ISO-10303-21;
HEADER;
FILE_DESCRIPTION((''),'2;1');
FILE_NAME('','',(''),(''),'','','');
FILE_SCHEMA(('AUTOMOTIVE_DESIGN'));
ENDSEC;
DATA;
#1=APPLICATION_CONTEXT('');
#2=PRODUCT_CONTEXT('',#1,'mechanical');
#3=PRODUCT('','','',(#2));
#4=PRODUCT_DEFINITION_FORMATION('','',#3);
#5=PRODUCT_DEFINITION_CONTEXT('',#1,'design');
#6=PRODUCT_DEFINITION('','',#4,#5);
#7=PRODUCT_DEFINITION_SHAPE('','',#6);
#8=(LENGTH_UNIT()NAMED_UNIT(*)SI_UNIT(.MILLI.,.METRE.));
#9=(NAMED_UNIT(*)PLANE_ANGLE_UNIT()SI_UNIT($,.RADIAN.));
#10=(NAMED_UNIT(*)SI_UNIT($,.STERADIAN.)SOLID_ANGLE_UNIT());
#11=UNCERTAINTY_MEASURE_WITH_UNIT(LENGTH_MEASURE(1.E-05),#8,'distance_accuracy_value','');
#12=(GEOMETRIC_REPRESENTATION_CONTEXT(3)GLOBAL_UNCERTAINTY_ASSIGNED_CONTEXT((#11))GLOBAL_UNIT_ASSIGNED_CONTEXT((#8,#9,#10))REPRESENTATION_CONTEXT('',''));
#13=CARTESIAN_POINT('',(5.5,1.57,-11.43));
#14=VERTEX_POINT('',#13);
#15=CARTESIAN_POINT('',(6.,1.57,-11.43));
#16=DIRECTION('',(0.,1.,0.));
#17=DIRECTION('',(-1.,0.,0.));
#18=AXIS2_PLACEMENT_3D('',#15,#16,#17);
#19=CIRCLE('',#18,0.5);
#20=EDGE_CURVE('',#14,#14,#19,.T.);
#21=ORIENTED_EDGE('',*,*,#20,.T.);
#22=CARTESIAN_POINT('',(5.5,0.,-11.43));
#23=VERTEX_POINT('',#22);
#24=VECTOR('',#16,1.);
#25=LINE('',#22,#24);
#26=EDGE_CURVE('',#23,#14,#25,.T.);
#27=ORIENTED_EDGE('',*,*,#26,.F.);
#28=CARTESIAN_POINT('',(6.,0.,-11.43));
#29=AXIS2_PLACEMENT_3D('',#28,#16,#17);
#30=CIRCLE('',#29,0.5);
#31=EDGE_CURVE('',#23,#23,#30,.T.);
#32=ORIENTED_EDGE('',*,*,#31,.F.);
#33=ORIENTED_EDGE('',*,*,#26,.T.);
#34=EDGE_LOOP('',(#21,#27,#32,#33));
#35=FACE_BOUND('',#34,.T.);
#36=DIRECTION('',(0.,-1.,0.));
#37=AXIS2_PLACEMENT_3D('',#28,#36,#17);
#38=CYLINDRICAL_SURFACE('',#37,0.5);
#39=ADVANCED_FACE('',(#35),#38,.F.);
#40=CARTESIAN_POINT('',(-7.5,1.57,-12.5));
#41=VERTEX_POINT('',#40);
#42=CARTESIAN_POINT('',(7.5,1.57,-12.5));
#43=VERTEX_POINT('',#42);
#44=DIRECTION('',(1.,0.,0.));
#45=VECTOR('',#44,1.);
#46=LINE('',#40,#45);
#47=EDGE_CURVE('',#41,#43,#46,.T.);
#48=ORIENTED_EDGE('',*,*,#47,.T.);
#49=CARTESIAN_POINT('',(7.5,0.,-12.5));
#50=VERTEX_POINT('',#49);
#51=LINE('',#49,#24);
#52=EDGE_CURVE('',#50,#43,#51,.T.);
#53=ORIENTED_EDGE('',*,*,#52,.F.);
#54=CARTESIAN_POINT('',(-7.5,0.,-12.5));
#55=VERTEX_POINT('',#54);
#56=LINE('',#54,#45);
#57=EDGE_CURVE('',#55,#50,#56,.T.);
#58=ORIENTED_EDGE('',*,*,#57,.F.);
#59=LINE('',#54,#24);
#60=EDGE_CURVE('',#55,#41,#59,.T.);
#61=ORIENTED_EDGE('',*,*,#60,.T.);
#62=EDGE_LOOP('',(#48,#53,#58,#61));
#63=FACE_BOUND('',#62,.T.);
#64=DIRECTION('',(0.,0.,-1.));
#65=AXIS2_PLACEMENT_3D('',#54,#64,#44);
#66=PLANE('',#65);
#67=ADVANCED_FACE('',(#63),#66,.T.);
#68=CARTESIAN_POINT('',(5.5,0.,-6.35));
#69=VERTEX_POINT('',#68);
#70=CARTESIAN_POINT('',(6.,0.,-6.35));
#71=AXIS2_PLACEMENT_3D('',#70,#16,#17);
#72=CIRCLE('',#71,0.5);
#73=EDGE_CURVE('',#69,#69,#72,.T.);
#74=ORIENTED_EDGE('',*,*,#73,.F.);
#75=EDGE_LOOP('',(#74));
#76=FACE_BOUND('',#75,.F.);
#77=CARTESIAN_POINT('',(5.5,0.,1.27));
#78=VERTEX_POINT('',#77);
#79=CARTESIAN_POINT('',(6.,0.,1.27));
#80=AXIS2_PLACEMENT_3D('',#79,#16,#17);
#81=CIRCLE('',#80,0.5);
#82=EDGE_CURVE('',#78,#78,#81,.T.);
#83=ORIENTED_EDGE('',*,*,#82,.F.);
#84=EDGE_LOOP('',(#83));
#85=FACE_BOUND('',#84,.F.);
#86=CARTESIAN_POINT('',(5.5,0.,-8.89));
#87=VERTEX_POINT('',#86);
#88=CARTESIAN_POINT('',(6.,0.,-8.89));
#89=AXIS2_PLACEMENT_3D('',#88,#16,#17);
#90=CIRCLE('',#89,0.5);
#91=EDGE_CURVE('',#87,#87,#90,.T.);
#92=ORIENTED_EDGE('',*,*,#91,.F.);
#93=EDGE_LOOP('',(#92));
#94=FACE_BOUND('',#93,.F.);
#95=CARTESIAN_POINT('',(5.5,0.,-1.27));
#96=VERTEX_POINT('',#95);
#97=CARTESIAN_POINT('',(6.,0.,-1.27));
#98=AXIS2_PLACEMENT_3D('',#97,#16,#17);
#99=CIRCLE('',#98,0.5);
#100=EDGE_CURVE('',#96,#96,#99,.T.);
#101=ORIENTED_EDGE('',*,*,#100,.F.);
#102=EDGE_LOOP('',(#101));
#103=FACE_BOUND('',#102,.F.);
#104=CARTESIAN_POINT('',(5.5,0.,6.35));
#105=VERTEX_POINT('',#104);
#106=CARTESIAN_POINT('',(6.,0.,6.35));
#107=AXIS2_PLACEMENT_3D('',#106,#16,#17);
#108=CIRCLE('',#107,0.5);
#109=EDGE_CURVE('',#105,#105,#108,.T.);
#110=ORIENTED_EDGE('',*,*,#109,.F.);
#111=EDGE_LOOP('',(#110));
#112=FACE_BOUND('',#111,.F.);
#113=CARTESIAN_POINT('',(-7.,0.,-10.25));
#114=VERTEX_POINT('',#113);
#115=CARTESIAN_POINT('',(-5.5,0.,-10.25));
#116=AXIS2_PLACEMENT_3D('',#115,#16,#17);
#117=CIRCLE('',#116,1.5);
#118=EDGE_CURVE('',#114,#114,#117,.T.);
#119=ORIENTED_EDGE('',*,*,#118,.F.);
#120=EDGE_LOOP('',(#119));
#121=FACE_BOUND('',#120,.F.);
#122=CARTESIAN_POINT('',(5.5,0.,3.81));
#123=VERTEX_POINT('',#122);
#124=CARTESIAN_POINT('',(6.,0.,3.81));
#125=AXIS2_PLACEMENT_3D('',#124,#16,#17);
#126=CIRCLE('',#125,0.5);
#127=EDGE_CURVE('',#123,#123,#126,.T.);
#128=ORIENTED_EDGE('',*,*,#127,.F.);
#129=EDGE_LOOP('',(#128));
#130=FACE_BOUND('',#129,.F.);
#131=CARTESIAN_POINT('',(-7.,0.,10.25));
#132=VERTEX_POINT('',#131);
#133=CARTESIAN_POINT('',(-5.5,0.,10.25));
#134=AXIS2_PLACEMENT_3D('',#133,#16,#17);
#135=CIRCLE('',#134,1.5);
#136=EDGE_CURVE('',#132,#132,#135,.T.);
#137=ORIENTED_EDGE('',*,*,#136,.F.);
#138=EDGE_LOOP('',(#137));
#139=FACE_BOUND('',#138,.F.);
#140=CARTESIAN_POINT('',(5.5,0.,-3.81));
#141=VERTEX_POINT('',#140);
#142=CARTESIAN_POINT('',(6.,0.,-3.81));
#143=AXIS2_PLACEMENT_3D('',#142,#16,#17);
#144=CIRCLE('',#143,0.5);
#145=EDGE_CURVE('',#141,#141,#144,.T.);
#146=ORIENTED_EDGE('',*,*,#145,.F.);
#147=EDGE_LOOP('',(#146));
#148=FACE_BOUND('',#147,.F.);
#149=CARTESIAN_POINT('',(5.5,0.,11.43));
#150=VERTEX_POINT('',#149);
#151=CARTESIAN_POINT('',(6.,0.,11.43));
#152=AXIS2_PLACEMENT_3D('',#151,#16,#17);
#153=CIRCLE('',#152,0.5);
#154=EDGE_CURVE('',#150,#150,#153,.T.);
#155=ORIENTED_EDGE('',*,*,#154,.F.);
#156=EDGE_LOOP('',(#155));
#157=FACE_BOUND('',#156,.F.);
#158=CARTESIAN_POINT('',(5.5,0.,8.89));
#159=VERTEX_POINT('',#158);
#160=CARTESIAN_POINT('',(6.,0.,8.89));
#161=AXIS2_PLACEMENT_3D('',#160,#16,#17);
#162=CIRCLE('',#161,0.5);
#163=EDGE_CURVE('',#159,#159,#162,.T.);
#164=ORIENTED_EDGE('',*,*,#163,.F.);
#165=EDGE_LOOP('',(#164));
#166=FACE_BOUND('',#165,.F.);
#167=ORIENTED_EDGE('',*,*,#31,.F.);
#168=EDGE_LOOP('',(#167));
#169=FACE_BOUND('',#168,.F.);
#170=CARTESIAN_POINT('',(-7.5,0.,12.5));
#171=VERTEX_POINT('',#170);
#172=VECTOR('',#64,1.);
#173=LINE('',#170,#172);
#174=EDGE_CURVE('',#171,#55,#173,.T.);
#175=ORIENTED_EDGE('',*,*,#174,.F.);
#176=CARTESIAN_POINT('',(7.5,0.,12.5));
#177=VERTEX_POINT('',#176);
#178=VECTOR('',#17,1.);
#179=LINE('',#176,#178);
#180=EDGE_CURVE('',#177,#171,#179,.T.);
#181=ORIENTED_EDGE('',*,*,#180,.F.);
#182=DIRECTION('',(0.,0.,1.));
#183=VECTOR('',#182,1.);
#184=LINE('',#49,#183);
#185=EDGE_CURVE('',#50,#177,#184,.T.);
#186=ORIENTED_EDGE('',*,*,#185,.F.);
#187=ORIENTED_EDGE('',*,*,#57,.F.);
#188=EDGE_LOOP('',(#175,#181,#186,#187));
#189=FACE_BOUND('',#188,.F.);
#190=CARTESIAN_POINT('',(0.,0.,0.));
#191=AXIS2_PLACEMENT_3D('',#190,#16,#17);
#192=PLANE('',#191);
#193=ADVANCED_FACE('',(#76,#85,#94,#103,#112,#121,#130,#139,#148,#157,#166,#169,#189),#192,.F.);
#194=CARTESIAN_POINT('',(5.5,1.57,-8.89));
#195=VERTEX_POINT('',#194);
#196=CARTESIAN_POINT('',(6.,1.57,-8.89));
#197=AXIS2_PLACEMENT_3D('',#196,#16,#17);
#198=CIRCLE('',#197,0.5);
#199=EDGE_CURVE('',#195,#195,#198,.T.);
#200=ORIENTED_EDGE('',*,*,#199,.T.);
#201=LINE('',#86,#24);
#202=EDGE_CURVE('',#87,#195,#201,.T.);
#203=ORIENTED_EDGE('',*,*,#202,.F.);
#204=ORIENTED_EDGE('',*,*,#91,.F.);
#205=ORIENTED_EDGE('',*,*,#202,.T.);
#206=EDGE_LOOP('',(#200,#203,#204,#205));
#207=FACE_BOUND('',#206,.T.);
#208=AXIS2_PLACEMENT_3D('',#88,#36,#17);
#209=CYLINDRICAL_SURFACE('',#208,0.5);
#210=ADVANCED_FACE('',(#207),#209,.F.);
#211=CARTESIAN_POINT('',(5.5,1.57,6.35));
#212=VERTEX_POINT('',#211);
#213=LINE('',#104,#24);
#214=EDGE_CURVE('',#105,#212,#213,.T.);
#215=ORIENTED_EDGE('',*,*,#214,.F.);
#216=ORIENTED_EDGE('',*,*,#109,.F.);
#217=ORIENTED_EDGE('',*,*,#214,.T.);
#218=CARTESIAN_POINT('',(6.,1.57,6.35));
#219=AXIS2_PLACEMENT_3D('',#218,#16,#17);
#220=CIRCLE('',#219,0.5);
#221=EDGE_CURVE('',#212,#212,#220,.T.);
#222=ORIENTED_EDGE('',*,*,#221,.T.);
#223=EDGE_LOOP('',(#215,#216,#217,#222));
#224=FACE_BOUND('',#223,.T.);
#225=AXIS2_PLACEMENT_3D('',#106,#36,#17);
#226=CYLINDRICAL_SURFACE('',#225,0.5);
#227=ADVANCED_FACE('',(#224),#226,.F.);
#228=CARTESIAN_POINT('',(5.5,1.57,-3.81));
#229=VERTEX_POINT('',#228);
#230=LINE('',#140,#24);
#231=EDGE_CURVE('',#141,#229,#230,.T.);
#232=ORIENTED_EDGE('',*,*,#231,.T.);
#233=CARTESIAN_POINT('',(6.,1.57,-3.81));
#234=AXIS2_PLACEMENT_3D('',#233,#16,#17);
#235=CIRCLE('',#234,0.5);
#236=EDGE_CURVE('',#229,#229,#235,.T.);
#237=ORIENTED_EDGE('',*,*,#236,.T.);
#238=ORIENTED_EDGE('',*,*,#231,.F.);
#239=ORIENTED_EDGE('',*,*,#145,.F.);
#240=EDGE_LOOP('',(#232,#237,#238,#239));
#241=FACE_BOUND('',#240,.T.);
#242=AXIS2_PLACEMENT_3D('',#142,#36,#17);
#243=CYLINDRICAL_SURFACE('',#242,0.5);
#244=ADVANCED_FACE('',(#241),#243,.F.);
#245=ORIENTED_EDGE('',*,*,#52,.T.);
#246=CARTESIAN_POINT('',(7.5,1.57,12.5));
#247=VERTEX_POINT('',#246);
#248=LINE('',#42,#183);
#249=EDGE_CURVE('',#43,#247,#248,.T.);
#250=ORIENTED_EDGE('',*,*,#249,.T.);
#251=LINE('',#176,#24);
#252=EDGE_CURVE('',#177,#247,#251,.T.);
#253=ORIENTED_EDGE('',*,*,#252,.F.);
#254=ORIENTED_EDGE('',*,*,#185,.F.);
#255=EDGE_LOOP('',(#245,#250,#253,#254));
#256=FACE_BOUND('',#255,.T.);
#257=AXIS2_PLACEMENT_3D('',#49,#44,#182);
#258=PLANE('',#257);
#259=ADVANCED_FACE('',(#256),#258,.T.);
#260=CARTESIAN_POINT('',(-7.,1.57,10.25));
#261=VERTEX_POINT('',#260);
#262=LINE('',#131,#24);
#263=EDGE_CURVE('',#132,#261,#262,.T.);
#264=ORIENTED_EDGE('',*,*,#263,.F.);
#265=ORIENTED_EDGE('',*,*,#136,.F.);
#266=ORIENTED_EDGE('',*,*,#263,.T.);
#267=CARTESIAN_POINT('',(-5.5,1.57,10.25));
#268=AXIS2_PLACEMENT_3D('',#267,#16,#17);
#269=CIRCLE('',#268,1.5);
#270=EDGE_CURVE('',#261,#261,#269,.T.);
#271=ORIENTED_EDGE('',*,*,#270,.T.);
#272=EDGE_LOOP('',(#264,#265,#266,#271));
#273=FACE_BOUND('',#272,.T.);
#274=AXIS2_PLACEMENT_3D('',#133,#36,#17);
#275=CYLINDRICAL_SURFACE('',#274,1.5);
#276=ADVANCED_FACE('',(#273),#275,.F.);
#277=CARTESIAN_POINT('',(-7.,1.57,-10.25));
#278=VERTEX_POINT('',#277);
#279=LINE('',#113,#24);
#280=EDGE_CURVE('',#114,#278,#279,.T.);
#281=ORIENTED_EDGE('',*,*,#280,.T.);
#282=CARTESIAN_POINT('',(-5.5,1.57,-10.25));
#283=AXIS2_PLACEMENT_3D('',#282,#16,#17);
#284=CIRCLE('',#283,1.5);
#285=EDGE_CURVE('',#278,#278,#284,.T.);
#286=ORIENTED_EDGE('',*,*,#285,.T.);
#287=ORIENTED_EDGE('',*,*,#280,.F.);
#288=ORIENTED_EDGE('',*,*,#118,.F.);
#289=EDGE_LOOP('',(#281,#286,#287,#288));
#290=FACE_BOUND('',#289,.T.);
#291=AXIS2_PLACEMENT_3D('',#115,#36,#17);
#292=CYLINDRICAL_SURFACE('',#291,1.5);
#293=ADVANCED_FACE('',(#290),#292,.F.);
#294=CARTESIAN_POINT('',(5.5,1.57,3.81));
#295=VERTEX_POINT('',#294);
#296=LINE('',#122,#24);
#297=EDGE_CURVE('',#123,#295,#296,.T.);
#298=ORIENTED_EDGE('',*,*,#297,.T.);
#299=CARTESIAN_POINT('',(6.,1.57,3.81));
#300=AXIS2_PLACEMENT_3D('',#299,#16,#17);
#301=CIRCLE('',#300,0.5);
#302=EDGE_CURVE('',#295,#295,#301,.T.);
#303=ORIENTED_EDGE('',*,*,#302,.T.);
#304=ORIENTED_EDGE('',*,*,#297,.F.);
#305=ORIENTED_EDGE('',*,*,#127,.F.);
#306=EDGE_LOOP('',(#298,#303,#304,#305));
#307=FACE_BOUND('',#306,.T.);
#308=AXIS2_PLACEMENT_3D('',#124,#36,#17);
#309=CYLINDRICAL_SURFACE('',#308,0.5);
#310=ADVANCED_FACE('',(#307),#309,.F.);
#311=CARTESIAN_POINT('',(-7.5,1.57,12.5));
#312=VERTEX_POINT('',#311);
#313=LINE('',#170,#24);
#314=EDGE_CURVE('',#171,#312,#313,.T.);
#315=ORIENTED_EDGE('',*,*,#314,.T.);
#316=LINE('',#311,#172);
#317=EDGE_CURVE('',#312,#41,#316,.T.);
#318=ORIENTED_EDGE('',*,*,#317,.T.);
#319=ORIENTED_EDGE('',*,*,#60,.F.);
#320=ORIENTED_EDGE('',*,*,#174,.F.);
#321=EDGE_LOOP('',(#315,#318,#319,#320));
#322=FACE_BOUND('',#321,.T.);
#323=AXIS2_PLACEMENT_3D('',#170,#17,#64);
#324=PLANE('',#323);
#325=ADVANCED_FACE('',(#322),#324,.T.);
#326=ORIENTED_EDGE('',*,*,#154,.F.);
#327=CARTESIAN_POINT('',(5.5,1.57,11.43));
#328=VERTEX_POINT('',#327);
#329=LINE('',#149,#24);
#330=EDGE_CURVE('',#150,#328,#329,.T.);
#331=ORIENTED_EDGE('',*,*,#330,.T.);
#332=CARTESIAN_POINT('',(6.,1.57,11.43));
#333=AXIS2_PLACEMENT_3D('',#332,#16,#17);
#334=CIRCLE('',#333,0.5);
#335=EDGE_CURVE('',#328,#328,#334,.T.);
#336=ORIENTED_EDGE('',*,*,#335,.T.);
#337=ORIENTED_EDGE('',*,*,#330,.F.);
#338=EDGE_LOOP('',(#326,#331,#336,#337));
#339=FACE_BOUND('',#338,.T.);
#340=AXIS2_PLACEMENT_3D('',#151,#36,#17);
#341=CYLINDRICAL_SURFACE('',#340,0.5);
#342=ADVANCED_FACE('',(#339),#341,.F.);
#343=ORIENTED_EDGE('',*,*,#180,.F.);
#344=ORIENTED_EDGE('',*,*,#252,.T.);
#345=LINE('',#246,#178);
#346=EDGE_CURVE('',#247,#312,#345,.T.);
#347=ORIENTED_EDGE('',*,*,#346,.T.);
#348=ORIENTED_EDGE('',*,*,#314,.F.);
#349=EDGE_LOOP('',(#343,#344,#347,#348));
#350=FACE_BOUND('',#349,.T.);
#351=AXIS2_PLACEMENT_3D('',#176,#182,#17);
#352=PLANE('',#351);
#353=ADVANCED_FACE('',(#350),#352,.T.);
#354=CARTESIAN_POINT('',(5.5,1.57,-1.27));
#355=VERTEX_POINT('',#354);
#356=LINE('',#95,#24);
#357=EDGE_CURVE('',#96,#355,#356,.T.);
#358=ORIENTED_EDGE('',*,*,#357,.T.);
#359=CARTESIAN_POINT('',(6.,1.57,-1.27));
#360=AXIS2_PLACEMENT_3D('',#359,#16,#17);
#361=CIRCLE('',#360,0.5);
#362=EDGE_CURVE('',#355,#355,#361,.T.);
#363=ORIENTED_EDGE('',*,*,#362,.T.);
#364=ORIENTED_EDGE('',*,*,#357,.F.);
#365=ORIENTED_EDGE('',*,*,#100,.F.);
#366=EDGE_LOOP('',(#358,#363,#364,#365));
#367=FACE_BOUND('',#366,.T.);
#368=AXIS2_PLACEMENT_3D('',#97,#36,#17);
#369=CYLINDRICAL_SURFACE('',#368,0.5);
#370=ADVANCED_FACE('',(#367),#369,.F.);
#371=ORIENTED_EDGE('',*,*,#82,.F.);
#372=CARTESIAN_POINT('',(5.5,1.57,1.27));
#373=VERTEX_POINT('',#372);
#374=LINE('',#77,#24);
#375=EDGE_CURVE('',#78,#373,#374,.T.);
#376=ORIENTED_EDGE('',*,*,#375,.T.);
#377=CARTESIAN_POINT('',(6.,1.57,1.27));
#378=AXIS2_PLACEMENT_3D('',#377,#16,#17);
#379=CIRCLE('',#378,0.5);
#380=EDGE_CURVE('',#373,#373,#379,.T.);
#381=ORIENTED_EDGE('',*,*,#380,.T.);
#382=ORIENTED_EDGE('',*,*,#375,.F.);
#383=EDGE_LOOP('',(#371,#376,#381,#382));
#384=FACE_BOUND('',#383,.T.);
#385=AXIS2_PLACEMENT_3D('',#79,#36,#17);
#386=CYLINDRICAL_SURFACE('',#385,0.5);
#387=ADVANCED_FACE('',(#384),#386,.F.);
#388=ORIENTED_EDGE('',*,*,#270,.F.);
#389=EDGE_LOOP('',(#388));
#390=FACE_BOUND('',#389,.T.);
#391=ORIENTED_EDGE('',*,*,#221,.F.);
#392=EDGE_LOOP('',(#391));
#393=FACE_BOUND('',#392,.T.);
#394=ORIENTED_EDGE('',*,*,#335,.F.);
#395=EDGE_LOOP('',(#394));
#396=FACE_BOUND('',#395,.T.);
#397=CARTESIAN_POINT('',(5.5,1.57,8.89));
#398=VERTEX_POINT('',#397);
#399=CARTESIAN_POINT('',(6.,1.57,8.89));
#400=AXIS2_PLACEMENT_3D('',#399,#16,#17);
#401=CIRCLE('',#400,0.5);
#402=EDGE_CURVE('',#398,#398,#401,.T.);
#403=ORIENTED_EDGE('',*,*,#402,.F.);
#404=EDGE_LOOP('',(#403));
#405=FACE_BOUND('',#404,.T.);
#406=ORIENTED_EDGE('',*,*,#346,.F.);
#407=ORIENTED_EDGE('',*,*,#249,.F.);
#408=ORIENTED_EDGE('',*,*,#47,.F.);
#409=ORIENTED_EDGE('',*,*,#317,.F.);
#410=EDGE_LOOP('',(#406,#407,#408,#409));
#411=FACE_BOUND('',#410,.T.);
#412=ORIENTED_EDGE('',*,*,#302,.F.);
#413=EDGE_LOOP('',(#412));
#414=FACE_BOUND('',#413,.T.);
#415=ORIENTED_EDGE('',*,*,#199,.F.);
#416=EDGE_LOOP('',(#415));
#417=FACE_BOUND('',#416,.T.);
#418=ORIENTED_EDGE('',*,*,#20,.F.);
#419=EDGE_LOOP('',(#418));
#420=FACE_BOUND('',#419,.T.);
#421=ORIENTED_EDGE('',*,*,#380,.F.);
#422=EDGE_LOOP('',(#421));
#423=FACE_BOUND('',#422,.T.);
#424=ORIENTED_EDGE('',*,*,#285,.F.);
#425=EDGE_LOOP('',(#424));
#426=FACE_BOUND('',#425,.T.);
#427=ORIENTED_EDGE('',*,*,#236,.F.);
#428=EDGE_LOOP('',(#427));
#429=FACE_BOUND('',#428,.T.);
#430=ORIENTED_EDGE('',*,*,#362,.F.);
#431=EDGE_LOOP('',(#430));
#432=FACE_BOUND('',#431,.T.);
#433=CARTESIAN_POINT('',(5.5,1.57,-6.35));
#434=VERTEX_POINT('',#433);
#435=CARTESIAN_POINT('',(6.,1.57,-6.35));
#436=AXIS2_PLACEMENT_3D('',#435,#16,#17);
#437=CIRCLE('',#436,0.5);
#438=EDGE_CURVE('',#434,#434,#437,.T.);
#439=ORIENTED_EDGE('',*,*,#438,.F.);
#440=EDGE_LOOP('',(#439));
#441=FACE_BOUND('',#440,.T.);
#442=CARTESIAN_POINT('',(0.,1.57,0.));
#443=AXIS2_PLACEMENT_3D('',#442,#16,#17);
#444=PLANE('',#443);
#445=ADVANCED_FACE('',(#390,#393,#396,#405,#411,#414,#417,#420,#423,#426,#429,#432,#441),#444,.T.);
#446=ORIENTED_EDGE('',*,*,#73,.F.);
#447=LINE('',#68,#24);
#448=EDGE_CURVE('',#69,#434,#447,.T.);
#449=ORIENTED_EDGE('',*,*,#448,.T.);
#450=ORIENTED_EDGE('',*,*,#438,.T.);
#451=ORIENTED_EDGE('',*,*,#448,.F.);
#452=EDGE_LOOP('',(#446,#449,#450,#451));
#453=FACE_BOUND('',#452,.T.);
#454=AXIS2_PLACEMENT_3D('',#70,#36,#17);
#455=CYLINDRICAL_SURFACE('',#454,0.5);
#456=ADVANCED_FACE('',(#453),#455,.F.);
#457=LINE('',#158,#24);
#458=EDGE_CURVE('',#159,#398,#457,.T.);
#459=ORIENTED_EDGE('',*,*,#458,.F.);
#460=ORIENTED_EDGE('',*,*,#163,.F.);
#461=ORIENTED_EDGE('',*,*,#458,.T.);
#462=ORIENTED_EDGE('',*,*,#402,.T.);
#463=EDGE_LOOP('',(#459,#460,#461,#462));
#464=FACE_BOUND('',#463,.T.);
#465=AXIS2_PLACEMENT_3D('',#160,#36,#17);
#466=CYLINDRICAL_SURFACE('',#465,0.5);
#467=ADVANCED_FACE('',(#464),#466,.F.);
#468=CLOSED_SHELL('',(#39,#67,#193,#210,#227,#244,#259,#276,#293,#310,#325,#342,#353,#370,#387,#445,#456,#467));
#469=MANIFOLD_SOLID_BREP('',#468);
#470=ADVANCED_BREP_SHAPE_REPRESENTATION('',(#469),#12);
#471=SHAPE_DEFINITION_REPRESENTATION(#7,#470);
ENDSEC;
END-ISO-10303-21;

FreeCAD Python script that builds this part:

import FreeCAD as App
import Part
import Sketcher
Q = App.Units.Quantity

doc = App.newDocument("Part")
body = doc.addObject("PartDesign::Body", "Body")

# Sketch on XZ plane
sketch1 = body.newObject("Sketcher::SketchObject", "Sketch")
sketch1.AttachmentSupport = (doc.getObject("XZ_Plane"), [""])
sketch1.MapMode = "FlatFace"
sketch1.addGeometry([
    Part.LineSegment(App.Vector(7.5, -12.5, 0), App.Vector(-7.5, -12.5, 0)),  # 0
    Part.LineSegment(App.Vector(-7.5, -12.5, 0), App.Vector(-7.5, 12.5, 0)),  # 1
    Part.LineSegment(App.Vector(-7.5, 12.5, 0), App.Vector(7.5, 12.5, 0)),  # 2
    Part.LineSegment(App.Vector(7.5, 12.5, 0), App.Vector(7.5, -12.5, 0)),  # 3
    Part.Circle(App.Vector(6, -11.4, 0), App.Vector(0, 0, 1), 0.5),  # 4
    Part.Circle(App.Vector(6, -8.9, 0), App.Vector(0, 0, 1), 0.5),  # 5
    Part.Circle(App.Vector(6, -6.3, 0), App.Vector(0, 0, 1), 0.5),  # 6
    Part.Circle(App.Vector(6, -3.8, 0), App.Vector(0, 0, 1), 0.5),  # 7
    Part.Circle(App.Vector(6, -1.3, 0), App.Vector(0, 0, 1), 0.5),  # 8
    Part.Circle(App.Vector(-5.5, -10.2, 0), App.Vector(0, 0, 1), 1.5),  # 9
    Part.Circle(App.Vector(6, 1.3, 0), App.Vector(0, 0, 1), 0.5),  # 10
    Part.Circle(App.Vector(6, 3.8, 0), App.Vector(0, 0, 1), 0.5),  # 11
    Part.Circle(App.Vector(6, 6.3, 0), App.Vector(0, 0, 1), 0.5),  # 12
    Part.Circle(App.Vector(6, 8.9, 0), App.Vector(0, 0, 1), 0.5),  # 13
    Part.Circle(App.Vector(6, 11.4, 0), App.Vector(0, 0, 1), 0.5),  # 14
    Part.Circle(App.Vector(-5.5, 10.2, 0), App.Vector(0, 0, 1), 1.5),  # 15
], False)
sketch1.addConstraint([
    Sketcher.Constraint("Coincident", 0, 2, 1, 1),
    Sketcher.Constraint("Coincident", 1, 2, 2, 1),
    Sketcher.Constraint("Coincident", 2, 2, 3, 1),
    Sketcher.Constraint("Coincident", 3, 2, 0, 1),
    Sketcher.Constraint("Horizontal", 0),
    Sketcher.Constraint("Vertical", 1),
    Sketcher.Constraint("Horizontal", 2),
    Sketcher.Constraint("Vertical", 3),
    Sketcher.Constraint("Equal", 4, 5),
    Sketcher.Constraint("Equal", 5, 6),
    Sketcher.Constraint("Equal", 6, 7),
    Sketcher.Constraint("Equal", 7, 8),
    Sketcher.Constraint("Equal", 8, 10),
    Sketcher.Constraint("Equal", 10, 11),
    Sketcher.Constraint("Equal", 11, 12),
    Sketcher.Constraint("Equal", 12, 13),
    Sketcher.Constraint("Equal", 13, 14),
    Sketcher.Constraint("Equal", 9, 15),
    Sketcher.Constraint("Symmetric", 0, 2, 2, 2, -1, 1),
    Sketcher.Constraint("Symmetric", 8, 3, 10, 3, -1),
    Sketcher.Constraint("Symmetric", 7, 3, 11, 3, -1),
    Sketcher.Constraint("Symmetric", 6, 3, 12, 3, -1),
    Sketcher.Constraint("Symmetric", 5, 3, 13, 3, -1),
    Sketcher.Constraint("Symmetric", 4, 3, 14, 3, -1),
    Sketcher.Constraint("Symmetric", 9, 3, 15, 3, -1),
    Sketcher.Constraint("Vertical", 4, 3, 5, 3),
    Sketcher.Constraint("Vertical", 5, 3, 6, 3),
    Sketcher.Constraint("Vertical", 6, 3, 7, 3),
    Sketcher.Constraint("Vertical", 7, 3, 8, 3),
    Sketcher.Constraint("Diameter", 4, Q("1 mm")),
    Sketcher.Constraint("Diameter", 9, Q("3 mm")),
    Sketcher.Constraint("DistanceX", 0, 2, 0, 1, Q("15 mm")),
    Sketcher.Constraint("DistanceY", 1, 1, 1, 2, Q("25 mm")),
    Sketcher.Constraint("DistanceX", 0, 2, 9, 3, Q("2 mm")),
    Sketcher.Constraint("DistanceX", 14, 3, 2, 2, Q("1.5 mm")),
    Sketcher.Constraint("DistanceY", 4, 3, 5, 3, Q("2.54 mm")),
    Sketcher.Constraint("DistanceY", 5, 3, 6, 3, Q("2.54 mm")),
    Sketcher.Constraint("DistanceY", 6, 3, 7, 3, Q("2.54 mm")),
    Sketcher.Constraint("DistanceY", 7, 3, 8, 3, Q("2.54 mm")),
    Sketcher.Constraint("DistanceY", 8, 3, 10, 3, Q("2.54 mm")),
    Sketcher.Constraint("DistanceY", 0, 2, 9, 3, Q("2.25 mm")),
])
pad1 = body.newObject("PartDesign::Pad", "Pad")
pad1.Profile = sketch1
pad1.Length = 1.57
pad1.Reversed = True

doc.recompute()
